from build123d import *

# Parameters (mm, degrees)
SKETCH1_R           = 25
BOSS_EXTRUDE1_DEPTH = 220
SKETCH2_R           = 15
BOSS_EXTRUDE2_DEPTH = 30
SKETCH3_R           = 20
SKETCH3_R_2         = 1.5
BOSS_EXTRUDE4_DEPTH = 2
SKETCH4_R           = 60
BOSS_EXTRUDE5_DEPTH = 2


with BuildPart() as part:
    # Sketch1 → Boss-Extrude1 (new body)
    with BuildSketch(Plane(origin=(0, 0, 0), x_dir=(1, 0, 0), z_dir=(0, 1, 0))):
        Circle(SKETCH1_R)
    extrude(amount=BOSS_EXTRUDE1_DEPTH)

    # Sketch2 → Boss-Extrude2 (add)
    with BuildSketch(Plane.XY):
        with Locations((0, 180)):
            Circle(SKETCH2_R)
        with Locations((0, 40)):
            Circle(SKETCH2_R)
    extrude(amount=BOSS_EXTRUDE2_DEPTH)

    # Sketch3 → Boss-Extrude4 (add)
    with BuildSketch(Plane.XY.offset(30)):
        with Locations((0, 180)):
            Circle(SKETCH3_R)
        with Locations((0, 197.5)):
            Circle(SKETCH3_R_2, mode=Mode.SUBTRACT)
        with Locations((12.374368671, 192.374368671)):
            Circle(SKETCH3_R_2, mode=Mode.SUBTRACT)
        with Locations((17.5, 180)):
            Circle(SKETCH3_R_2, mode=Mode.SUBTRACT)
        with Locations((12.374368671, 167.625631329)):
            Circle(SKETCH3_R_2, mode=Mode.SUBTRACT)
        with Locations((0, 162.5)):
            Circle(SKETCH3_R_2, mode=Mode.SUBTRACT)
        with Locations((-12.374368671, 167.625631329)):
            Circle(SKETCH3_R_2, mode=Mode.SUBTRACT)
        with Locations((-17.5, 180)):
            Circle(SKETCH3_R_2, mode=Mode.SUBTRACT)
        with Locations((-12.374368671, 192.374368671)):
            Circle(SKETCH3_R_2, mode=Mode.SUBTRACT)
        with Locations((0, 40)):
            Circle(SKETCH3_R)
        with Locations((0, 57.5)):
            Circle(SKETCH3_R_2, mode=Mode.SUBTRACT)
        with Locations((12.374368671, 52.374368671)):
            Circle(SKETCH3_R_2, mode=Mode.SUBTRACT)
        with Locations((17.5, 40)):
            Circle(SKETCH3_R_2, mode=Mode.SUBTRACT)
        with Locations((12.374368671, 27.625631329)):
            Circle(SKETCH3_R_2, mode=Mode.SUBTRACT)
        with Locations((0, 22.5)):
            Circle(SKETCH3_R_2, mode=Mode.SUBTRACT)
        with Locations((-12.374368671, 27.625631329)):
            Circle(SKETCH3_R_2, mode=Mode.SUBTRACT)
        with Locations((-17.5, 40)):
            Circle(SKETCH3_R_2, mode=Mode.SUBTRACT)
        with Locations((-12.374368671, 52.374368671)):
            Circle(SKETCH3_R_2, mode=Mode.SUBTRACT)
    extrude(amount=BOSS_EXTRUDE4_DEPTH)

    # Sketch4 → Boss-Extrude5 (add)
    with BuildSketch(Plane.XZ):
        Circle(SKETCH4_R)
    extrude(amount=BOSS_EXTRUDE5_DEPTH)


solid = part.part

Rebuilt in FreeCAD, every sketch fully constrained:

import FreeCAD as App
import Part
import Sketcher
from FreeCAD import Vector

doc = App.newDocument("Part")
params = doc.addObject("Spreadsheet::Sheet", "Params")
for row, (alias, value) in enumerate([
    ("sketch1_diameter", "50 mm"),
    ("pad1_length", "220 mm"),
    ("sketch2_diameter", "30 mm"),
    ("pad2_length", "30 mm"),
    ("sketch3_diameter", "40 mm"),
    ("sketch3_diameter2", "3 mm"),
    ("pad3_length", "2 mm"),
    ("sketch4_diameter", "120 mm"),
    ("pad4_length", "2 mm"),
], start=1):
    params.set(f"A{row}", alias)
    params.set(f"B{row}", "=" + value)
    params.setAlias(f"B{row}", alias)

body = doc.addObject("PartDesign::Body", "Body")

# Sketch on XZ plane
sketch1 = body.newObject("Sketcher::SketchObject", "Sketch")
sketch1.AttachmentSupport = (doc.getObject("XZ_Plane"), [""])
sketch1.MapMode = "FlatFace"
sketch1.addGeometry(Part.Circle(Vector(0, 0, 0), Vector(0, 0, 1), 25), False)
sketch1.addConstraint([
    Sketcher.Constraint("Coincident", 0, 3, -1, 1),
    Sketcher.Constraint("Diameter", 0, 50.0),
])
sketch1.setExpression("Constraints[1]", "Params.sketch1_diameter")
pad1 = body.newObject("PartDesign::Pad", "Pad")
pad1.Profile = sketch1
pad1.setExpression("Length", "Params.pad1_length")
pad1.Reversed = True

# Sketch on XY plane
sketch2 = body.newObject("Sketcher::SketchObject", "Sketch001")
sketch2.AttachmentSupport = (doc.getObject("XY_Plane"), [""])
sketch2.MapMode = "FlatFace"
sketch2.addGeometry([
    Part.Circle(Vector(0, 180, 0), Vector(0, 0, 1), 15),
    Part.Circle(Vector(0, 40, 0), Vector(0, 0, 1), 15),
], False)
sketch2.addConstraint([
    Sketcher.Constraint("Equal", 0, 1),
    Sketcher.Constraint("PointOnObject", 0, 3, -2),
    Sketcher.Constraint("PointOnObject", 1, 3, -2),
    Sketcher.Constraint("Diameter", 0, 30.0),
    Sketcher.Constraint("DistanceY", -1, 1, 0, 3, 180.0),
    Sketcher.Constraint("DistanceY", -1, 1, 1, 3, 40.0),
])
sketch2.setExpression("Constraints[3]", "Params.sketch2_diameter")
pad2 = body.newObject("PartDesign::Pad", "Pad001")
pad2.Profile = sketch2
pad2.setExpression("Length", "Params.pad2_length")

# Sketch on XY plane
sketch3 = body.newObject("Sketcher::SketchObject", "Sketch002")
sketch3.AttachmentSupport = (doc.getObject("XY_Plane"), [""])
sketch3.MapMode = "FlatFace"
sketch3.AttachmentOffset = App.Placement(Vector(0, 0, 30), App.Rotation())
sketch3.addGeometry([
    Part.Circle(Vector(0, 180, 0), Vector(0, 0, 1), 20),  # 0
    Part.Circle(Vector(-12.4, 167.6, 0), Vector(0, 0, 1), 1.5),  # 1
    Part.Circle(Vector(0, 162.5, 0), Vector(0, 0, 1), 1.5),  # 2
    Part.Circle(Vector(12.4, 167.6, 0), Vector(0, 0, 1), 1.5),  # 3
    Part.Circle(Vector(-17.5, 180, 0), Vector(0, 0, 1), 1.5),  # 4
    Part.Circle(Vector(-12.4, 192.4, 0), Vector(0, 0, 1), 1.5),  # 5
    Part.Circle(Vector(17.5, 180, 0), Vector(0, 0, 1), 1.5),  # 6
    Part.Circle(Vector(0, 197.5, 0), Vector(0, 0, 1), 1.5),  # 7
    Part.Circle(Vector(12.4, 192.4, 0), Vector(0, 0, 1), 1.5),  # 8
    Part.Circle(Vector(0, 40, 0), Vector(0, 0, 1), 20),  # 9
    Part.Circle(Vector(-12.4, 27.6, 0), Vector(0, 0, 1), 1.5),  # 10
    Part.Circle(Vector(0, 22.5, 0), Vector(0, 0, 1), 1.5),  # 11
    Part.Circle(Vector(12.4, 27.6, 0), Vector(0, 0, 1), 1.5),  # 12
    Part.Circle(Vector(-17.5, 40, 0), Vector(0, 0, 1), 1.5),  # 13
    Part.Circle(Vector(-12.4, 52.4, 0), Vector(0, 0, 1), 1.5),  # 14
    Part.Circle(Vector(17.5, 40, 0), Vector(0, 0, 1), 1.5),  # 15
    Part.Circle(Vector(0, 57.5, 0), Vector(0, 0, 1), 1.5),  # 16
    Part.Circle(Vector(12.4, 52.4, 0), Vector(0, 0, 1), 1.5),  # 17
], False)
sketch3.addConstraint([
    Sketcher.Constraint("Equal", 1, 2),
    Sketcher.Constraint("Equal", 2, 3),
    Sketcher.Constraint("Equal", 3, 4),
    Sketcher.Constraint("Equal", 4, 5),
    Sketcher.Constraint("Equal", 5, 6),
    Sketcher.Constraint("Equal", 6, 7),
    Sketcher.Constraint("Equal", 7, 8),
    Sketcher.Constraint("Equal", 0, 9),
    Sketcher.Constraint("Equal", 8, 10),
    Sketcher.Constraint("Equal", 10, 11),
    Sketcher.Constraint("Equal", 11, 12),
    Sketcher.Constraint("Equal", 12, 13),
    Sketcher.Constraint("Equal", 13, 14),
    Sketcher.Constraint("Equal", 14, 15),
    Sketcher.Constraint("Equal", 15, 16),
    Sketcher.Constraint("Equal", 16, 17),
    Sketcher.Constraint("Symmetric", 1, 3, 3, 3, -2),
    Sketcher.Constraint("Symmetric", 4, 3, 6, 3, -2),
    Sketcher.Constraint("Symmetric", 5, 3, 8, 3, -2),
    Sketcher.Constraint("Symmetric", 10, 3, 12, 3, -2),
    Sketcher.Constraint("Symmetric", 13, 3, 15, 3, -2),
    Sketcher.Constraint("Symmetric", 14, 3, 17, 3, -2),
    Sketcher.Constraint("PointOnObject", 0, 3, -2),
    Sketcher.Constraint("PointOnObject", 2, 3, -2),
    Sketcher.Constraint("PointOnObject", 7, 3, -2),
    Sketcher.Constraint("PointOnObject", 9, 3, -2),
    Sketcher.Constraint("PointOnObject", 11, 3, -2),
    Sketcher.Constraint("PointOnObject", 16, 3, -2),
    Sketcher.Constraint("Horizontal", 0, 3, 4, 3),
    Sketcher.Constraint("Horizontal", 9, 3, 13, 3),
    Sketcher.Constraint("Vertical", 1, 3, 5, 3),
    Sketcher.Constraint("Vertical", 5, 3, 10, 3),
    Sketcher.Constraint("Vertical", 4, 3, 13, 3),
    Sketcher.Constraint("Vertical", 10, 3, 14, 3),
    Sketcher.Constraint("Diameter", 0, 40.0),
    Sketcher.Constraint("Diameter", 1, 3.0),
    Sketcher.Constraint("DistanceY", -1, 1, 0, 3, 180.0),
    Sketcher.Constraint("DistanceY", -1, 1, 9, 3, 40.0),
    Sketcher.Constraint("DistanceY", 10, 3, 1, 3, 140.0),
    Sketcher.Constraint("DistanceY", 11, 3, 2, 3, 140.0),
    Sketcher.Constraint("DistanceY", -1, 1, 2, 3, 162.5),
    Sketcher.Constraint("DistanceX", 4, 3, -1, 1, 17.5),
    Sketcher.Constraint("DistanceY", -1, 1, 7, 3, 197.5),
    Sketcher.Constraint("DistanceY", -1, 1, 16, 3, 57.5),
    Sketcher.Constraint("DistanceX", 1, 3, -1, 1, 12.374369),
    Sketcher.Constraint("DistanceY", -1, 1, 1, 3, 167.625631),
    Sketcher.Constraint("DistanceY", -1, 1, 5, 3, 192.374369),
    Sketcher.Constraint("DistanceY", -1, 1, 14, 3, 52.374369),
])
sketch3.setExpression("Constraints[34]", "Params.sketch3_diameter")
sketch3.setExpression("Constraints[35]", "Params.sketch3_diameter2")
pad3 = body.newObject("PartDesign::Pad", "Pad002")
pad3.Profile = sketch3
pad3.setExpression("Length", "Params.pad3_length")

# Sketch on XZ plane
sketch4 = body.newObject("Sketcher::SketchObject", "Sketch003")
sketch4.AttachmentSupport = (doc.getObject("XZ_Plane"), [""])
sketch4.MapMode = "FlatFace"
sketch4.addGeometry(Part.Circle(Vector(0, 0, 0), Vector(0, 0, 1), 60), False)
sketch4.addConstraint([
    Sketcher.Constraint("Coincident", 0, 3, -1, 1),
    Sketcher.Constraint("Diameter", 0, 120.0),
])
sketch4.setExpression("Constraints[1]", "Params.sketch4_diameter")
pad4 = body.newObject("PartDesign::Pad", "Pad003")
pad4.Profile = sketch4
pad4.setExpression("Length", "Params.pad4_length")

doc.recompute()
